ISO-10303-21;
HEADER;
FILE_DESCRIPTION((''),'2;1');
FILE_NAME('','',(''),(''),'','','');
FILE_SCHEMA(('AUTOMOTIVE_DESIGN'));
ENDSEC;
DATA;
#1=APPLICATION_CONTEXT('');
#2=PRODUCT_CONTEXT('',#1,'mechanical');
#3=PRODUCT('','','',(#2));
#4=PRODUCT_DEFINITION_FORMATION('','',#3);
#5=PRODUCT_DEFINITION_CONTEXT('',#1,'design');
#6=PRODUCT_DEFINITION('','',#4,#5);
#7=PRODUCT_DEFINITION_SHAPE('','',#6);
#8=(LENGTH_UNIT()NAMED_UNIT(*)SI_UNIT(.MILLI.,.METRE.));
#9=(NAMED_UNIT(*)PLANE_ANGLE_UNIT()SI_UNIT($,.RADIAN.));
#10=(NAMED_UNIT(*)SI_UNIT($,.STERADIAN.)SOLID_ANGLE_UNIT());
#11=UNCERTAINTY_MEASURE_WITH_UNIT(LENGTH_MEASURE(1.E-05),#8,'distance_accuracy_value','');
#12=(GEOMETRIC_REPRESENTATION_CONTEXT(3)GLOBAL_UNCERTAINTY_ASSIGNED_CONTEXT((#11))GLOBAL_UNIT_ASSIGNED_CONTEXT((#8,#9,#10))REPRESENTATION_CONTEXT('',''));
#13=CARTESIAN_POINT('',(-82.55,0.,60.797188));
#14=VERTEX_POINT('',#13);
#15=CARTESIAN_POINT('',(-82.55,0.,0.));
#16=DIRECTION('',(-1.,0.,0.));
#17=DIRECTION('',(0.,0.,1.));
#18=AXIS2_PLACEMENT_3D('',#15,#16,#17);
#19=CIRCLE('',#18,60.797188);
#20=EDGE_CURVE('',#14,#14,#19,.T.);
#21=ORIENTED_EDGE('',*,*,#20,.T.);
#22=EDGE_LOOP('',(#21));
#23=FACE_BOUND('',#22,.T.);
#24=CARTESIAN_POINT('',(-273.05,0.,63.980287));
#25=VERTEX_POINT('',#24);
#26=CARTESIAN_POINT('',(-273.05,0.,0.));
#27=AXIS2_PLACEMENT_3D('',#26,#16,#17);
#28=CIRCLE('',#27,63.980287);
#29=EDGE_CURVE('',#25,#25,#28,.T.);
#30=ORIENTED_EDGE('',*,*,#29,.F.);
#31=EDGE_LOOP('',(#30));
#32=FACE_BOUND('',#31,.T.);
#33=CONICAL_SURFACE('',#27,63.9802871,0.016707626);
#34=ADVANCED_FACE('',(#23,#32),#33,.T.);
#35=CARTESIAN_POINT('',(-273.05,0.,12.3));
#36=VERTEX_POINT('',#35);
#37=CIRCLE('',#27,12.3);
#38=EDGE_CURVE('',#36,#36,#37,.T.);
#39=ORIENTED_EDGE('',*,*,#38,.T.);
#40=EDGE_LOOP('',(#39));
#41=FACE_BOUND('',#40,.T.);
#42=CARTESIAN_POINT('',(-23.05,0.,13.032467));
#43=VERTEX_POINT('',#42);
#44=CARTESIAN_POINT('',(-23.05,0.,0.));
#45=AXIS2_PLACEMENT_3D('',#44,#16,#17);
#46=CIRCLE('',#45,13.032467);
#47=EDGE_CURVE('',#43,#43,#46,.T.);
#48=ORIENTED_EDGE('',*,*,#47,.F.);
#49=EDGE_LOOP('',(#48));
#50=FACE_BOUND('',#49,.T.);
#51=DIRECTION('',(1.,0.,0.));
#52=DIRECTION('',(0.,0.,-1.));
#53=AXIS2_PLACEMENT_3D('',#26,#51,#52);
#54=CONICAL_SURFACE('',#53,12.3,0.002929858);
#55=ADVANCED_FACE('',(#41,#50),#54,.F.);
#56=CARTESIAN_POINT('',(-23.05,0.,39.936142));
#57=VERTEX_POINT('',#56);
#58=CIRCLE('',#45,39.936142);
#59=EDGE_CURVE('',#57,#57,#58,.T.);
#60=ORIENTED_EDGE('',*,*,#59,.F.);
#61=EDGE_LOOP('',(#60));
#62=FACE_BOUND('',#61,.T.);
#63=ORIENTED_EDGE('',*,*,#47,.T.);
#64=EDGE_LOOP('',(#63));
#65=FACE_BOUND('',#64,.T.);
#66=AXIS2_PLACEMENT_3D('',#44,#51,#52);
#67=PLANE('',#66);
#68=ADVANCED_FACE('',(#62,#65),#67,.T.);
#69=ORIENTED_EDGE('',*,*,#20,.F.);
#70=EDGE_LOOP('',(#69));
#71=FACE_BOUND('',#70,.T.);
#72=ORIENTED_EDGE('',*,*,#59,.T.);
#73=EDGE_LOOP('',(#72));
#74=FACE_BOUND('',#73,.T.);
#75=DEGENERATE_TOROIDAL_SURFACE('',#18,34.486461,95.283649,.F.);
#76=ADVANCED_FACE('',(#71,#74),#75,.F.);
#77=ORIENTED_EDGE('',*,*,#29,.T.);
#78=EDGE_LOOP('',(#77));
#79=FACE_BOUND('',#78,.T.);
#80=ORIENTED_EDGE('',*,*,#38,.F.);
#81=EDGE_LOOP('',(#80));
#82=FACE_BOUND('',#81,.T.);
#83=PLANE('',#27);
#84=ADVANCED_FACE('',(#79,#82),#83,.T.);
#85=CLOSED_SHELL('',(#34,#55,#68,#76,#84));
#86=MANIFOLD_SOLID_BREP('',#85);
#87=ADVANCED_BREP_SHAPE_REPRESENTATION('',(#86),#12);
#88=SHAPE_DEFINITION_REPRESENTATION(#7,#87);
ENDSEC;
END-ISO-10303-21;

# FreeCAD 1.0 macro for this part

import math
import FreeCAD as App
import Part
import Sketcher

doc = App.newDocument("Part")
body = doc.addObject("PartDesign::Body", "Body")

# Sketch on XZ plane
sketch1 = body.newObject("Sketcher::SketchObject", "Sketch")
sketch1.AttachmentSupport = (doc.getObject("XZ_Plane"), [""])
sketch1.MapMode = "FlatFace"
sketch1.addGeometry(Part.LineSegment(App.Vector(-83, -61, 0), App.Vector(-273, -64, 0)), False)
sketch1.addGeometry(Part.LineSegment(App.Vector(-273, -64, 0), App.Vector(-273, -12, 0)), False)
sketch1.addGeometry(Part.LineSegment(App.Vector(-273, -12, 0), App.Vector(-23, -13, 0)), False)
sketch1.addGeometry(Part.LineSegment(App.Vector(-23, -13, 0), App.Vector(-23, -40, 0)), False)
sketch1.addGeometry(Part.ArcOfCircle(Part.Circle(App.Vector(-83, 34, 0), App.Vector(0, 0, 1), 95), math.radians(-90), math.radians(-51)), False)
sketch1.addConstraint(Sketcher.Constraint("Coincident", 0, 2, 1, 1))
sketch1.addConstraint(Sketcher.Constraint("Coincident", 1, 2, 2, 1))
sketch1.addConstraint(Sketcher.Constraint("Coincident", 2, 2, 3, 1))
sketch1.addConstraint(Sketcher.Constraint("Coincident", 3, 2, 4, 2))
sketch1.addConstraint(Sketcher.Constraint("Coincident", 4, 1, 0, 1))
sketch1.addConstraint(Sketcher.Constraint("Vertical", 1))
sketch1.addConstraint(Sketcher.Constraint("Vertical", 3))
sketch1.addConstraint(Sketcher.Constraint("DistanceX", 1, 2, 2, 2, 250.0))
sketch1.addConstraint(Sketcher.Constraint("DistanceY", 1, 2, -1, 1, 12.3))
sketch1.addConstraint(Sketcher.Constraint("DistanceX", 0, 2, 4, 3, 190.5))
sketch1.addConstraint(Sketcher.Constraint("DistanceX", 4, 1, 3, 2, 59.5))
sketch1.addConstraint(Sketcher.Constraint("DistanceX", 4, 3, -1, 1, 82.55))
sketch1.addConstraint(Sketcher.Constraint("Radius", 4, 95.283649))
sketch1.addConstraint(Sketcher.Constraint("DistanceY", 0, 2, 4, 1, 3.183099))
sketch1.addConstraint(Sketcher.Constraint("DistanceY", 1, 1, 1, 2, 51.680287))
sketch1.addConstraint(Sketcher.Constraint("DistanceY", 3, 2, 3, 1, 26.903675))
revolution = body.newObject("PartDesign::Revolution", "Revolution")
revolution.Profile = sketch1
revolution.ReferenceAxis = (sketch1, ["H_Axis"])
revolution.Angle = 360

doc.recompute()
